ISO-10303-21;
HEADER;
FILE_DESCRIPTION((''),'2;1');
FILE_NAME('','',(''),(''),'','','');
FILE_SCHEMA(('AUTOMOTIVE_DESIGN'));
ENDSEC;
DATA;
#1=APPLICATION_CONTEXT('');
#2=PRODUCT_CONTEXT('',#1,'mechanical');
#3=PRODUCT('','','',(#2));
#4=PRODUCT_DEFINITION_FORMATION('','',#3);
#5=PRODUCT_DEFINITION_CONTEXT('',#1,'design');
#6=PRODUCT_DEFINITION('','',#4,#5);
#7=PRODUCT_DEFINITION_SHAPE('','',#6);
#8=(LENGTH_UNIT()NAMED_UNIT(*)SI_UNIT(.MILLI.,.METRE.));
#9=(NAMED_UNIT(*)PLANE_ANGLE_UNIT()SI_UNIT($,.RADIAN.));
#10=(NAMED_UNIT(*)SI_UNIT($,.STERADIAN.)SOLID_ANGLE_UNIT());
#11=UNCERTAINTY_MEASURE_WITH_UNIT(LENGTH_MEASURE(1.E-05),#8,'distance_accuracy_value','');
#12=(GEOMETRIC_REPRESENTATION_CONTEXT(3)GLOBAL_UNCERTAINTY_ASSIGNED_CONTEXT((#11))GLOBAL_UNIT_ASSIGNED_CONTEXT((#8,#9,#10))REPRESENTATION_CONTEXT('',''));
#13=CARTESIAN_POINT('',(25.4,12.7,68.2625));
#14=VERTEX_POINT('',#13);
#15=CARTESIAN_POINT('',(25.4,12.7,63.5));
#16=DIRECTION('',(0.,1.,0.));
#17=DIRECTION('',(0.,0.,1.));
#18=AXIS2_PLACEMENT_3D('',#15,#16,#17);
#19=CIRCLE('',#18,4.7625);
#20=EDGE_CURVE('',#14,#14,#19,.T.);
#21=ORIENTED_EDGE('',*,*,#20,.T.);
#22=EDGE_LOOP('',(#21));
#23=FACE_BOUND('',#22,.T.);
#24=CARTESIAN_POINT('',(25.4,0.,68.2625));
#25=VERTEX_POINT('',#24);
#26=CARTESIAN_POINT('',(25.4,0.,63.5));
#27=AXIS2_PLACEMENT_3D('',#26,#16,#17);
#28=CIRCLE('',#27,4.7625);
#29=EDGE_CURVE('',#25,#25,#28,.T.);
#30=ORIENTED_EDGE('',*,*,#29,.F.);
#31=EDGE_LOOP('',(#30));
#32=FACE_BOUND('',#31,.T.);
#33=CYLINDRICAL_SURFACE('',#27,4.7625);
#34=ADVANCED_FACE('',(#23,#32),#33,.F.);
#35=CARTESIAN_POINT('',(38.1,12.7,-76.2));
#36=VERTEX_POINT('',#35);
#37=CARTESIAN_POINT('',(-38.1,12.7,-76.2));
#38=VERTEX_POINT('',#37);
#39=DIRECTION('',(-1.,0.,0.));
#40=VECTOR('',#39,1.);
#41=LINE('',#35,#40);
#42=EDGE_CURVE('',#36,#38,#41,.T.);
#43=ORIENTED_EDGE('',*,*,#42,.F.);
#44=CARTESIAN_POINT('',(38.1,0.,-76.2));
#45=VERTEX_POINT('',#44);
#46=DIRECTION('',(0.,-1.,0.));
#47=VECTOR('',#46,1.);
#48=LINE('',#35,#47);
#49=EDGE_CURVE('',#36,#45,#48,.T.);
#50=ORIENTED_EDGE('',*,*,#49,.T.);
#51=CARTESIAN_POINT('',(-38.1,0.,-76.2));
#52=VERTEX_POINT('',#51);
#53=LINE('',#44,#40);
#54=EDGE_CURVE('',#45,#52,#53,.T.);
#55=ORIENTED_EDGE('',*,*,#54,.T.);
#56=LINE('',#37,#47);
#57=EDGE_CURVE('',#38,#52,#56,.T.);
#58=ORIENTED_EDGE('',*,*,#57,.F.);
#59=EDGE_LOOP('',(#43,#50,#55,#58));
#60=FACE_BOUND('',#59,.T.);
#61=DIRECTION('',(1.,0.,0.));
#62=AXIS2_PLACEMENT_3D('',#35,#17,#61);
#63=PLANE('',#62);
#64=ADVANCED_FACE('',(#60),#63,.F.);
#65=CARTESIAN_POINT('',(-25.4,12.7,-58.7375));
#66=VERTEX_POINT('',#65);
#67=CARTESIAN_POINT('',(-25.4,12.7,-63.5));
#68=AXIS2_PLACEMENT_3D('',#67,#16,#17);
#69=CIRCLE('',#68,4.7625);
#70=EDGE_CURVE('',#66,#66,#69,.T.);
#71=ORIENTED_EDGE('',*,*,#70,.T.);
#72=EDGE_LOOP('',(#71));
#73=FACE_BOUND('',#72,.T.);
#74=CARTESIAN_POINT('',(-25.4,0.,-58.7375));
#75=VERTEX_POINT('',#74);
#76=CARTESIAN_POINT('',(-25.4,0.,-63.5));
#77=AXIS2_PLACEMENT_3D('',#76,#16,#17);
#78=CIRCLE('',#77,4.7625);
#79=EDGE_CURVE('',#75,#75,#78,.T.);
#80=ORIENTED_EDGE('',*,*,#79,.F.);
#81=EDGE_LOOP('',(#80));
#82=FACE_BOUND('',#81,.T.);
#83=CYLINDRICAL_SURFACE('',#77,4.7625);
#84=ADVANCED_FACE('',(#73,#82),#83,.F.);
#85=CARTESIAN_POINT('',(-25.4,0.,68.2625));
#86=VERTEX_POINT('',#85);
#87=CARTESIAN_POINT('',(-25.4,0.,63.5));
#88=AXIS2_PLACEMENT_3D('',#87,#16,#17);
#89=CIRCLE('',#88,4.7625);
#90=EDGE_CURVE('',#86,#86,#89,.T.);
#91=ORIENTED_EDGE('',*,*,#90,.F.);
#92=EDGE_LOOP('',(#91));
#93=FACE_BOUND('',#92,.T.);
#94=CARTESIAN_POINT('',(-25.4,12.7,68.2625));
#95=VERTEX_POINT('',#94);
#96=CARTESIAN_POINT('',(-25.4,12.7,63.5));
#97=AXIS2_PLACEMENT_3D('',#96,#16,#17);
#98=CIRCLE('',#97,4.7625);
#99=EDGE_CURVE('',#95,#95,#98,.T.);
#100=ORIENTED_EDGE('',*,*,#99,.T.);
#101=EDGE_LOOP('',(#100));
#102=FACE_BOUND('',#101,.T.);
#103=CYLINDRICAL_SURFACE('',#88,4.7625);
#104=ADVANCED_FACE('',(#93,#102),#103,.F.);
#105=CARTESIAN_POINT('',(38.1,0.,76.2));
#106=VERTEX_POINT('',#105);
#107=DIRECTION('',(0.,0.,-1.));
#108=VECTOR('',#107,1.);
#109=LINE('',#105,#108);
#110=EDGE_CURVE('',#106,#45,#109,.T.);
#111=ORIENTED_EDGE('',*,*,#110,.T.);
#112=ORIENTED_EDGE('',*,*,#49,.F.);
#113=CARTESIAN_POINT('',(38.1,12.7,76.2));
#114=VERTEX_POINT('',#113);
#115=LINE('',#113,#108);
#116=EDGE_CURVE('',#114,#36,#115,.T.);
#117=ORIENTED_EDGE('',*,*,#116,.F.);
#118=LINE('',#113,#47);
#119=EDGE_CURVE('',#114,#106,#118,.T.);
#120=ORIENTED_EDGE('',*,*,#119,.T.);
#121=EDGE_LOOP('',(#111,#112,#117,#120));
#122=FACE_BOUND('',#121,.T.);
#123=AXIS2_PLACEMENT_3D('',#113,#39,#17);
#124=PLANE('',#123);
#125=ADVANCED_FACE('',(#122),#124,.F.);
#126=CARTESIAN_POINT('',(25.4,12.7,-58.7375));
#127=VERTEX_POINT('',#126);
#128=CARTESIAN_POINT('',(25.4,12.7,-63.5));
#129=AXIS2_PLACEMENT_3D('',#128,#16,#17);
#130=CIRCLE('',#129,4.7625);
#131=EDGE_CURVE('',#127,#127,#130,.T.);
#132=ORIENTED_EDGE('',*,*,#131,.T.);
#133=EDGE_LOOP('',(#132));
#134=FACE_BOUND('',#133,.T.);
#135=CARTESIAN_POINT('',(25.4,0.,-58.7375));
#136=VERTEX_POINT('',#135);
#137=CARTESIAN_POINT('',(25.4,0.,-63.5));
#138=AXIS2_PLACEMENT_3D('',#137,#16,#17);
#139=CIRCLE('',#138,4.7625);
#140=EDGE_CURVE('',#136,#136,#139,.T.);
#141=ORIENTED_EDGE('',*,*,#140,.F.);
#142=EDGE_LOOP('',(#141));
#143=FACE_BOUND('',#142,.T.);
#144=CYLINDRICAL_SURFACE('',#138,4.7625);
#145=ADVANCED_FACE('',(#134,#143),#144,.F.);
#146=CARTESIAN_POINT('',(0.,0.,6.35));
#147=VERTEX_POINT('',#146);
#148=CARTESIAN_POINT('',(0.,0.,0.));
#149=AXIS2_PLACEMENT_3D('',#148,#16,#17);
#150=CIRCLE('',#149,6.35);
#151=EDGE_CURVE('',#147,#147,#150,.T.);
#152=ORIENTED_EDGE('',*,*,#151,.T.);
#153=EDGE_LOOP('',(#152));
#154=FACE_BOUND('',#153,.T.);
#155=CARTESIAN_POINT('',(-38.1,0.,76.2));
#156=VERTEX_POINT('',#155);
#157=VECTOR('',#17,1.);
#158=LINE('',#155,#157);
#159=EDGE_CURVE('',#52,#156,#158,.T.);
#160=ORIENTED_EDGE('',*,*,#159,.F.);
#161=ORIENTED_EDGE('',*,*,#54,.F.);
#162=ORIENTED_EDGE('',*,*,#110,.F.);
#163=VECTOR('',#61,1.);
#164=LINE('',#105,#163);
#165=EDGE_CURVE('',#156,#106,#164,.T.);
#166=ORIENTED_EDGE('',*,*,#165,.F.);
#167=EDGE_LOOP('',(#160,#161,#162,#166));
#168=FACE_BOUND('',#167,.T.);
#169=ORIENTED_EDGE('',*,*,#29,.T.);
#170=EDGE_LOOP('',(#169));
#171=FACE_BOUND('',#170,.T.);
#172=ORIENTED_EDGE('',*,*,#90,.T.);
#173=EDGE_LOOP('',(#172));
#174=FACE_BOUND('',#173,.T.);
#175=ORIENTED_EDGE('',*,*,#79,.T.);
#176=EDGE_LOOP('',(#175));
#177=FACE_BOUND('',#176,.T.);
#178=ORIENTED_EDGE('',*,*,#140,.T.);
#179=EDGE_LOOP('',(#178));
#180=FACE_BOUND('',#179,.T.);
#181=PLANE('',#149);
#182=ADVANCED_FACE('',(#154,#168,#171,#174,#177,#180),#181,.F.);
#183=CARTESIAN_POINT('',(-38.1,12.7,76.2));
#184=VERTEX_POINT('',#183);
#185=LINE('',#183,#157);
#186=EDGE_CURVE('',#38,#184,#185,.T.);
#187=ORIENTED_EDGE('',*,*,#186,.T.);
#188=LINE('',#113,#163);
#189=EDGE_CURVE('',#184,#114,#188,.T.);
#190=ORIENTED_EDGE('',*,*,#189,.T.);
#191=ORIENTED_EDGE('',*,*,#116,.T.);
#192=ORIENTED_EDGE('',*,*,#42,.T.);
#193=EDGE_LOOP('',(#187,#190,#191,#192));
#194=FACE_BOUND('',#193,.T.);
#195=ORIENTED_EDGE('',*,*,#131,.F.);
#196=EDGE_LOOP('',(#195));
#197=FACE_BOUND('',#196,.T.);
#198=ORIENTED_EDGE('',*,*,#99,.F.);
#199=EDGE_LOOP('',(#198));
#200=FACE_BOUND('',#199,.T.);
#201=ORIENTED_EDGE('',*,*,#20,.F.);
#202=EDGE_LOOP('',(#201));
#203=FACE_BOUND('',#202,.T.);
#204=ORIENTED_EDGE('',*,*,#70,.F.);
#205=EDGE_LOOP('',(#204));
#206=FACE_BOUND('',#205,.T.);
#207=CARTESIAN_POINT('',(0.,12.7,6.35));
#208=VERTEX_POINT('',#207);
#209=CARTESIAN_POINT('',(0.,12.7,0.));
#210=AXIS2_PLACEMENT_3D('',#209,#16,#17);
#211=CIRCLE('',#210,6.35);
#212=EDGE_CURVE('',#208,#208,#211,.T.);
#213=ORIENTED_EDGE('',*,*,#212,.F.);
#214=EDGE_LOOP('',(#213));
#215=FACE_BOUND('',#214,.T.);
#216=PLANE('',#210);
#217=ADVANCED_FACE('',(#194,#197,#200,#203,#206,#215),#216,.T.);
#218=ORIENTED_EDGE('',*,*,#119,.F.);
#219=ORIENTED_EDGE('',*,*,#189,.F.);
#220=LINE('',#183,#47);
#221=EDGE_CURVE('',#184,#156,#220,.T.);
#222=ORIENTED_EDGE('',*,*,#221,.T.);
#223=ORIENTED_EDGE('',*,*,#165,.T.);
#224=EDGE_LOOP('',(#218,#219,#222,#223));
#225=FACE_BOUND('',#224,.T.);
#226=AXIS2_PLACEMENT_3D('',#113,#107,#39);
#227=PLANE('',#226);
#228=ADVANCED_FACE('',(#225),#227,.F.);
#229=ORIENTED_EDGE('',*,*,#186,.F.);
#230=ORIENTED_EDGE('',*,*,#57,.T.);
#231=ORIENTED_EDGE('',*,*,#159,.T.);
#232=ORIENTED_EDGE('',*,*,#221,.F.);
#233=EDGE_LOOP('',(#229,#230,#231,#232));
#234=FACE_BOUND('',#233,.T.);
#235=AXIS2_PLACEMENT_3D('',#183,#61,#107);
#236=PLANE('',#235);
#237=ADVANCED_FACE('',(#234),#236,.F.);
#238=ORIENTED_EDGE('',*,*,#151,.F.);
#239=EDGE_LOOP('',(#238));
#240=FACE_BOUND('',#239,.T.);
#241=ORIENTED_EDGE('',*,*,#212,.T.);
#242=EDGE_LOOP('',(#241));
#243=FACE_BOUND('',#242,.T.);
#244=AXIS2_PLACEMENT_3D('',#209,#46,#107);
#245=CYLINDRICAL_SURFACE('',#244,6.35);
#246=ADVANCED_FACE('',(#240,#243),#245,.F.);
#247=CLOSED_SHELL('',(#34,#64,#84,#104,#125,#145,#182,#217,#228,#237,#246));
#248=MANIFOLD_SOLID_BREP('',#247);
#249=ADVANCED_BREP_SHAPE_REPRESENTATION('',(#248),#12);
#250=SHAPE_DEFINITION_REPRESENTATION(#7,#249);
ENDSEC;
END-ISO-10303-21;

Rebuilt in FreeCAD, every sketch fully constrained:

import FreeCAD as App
import Part
import Sketcher
from FreeCAD import Vector
Q = App.Units.Quantity

doc = App.newDocument("Part")
body = doc.addObject("PartDesign::Body", "Body")

# Sketch on XZ plane
sketch1 = body.newObject("Sketcher::SketchObject", "Sketch")
sketch1.AttachmentSupport = (doc.getObject("XZ_Plane"), [""])
sketch1.MapMode = "FlatFace"
sketch1.addGeometry([
    Part.LineSegment(Vector(-38.1, -76.2, 0), Vector(-38.1, 76.2, 0)),  # 0
    Part.LineSegment(Vector(-38.1, 76.2, 0), Vector(38.1, 76.2, 0)),  # 1
    Part.LineSegment(Vector(38.1, 76.2, 0), Vector(38.1, -76.2, 0)),  # 2
    Part.LineSegment(Vector(38.1, -76.2, 0), Vector(-38.1, -76.2, 0)),  # 3
    Part.Circle(Vector(0, 0, 0), Vector(0, 0, 1), 6.35),  # 4
], False)
sketch1.addConstraint([
    Sketcher.Constraint("Coincident", 0, 2, 1, 1),
    Sketcher.Constraint("Coincident", 1, 2, 2, 1),
    Sketcher.Constraint("Coincident", 2, 2, 3, 1),
    Sketcher.Constraint("Coincident", 3, 2, 0, 1),
    Sketcher.Constraint("Vertical", 0),
    Sketcher.Constraint("Horizontal", 1),
    Sketcher.Constraint("Vertical", 2),
    Sketcher.Constraint("Horizontal", 3),
    Sketcher.Constraint("Coincident", 4, 3, -1, 1),
    Sketcher.Constraint("Symmetric", 0, 2, 2, 2, -1, 1),
    Sketcher.Constraint("Diameter", 4, Q("0.5 in")),
    Sketcher.Constraint("DistanceX", 1, 1, 1, 2, Q("3 in")),
    Sketcher.Constraint("DistanceY", 0, 1, 0, 2, Q("6 in")),
])
pad1 = body.newObject("PartDesign::Pad", "Pad")
pad1.Profile = sketch1
pad1.Length = Q("0.5 in")
pad1.Reversed = True

# Sketch on XZ plane
sketch2 = body.newObject("Sketcher::SketchObject", "Sketch001")
sketch2.AttachmentSupport = (doc.getObject("XZ_Plane"), [""])
sketch2.MapMode = "FlatFace"
sketch2.AttachmentOffset = App.Placement(Vector(0, 0, -0.5 * 25.4), App.Rotation())
sketch2.addGeometry([
    Part.Circle(Vector(-25.4, -63.5, 0), Vector(0, 0, 1), 4.7625),
    Part.Circle(Vector(-25.4, 63.5, 0), Vector(0, 0, 1), 4.7625),
    Part.Circle(Vector(25.4, 63.5, 0), Vector(0, 0, 1), 4.7625),
    Part.Circle(Vector(25.4, -63.5, 0), Vector(0, 0, 1), 4.7625),
], False)
sketch2.addConstraint([
    Sketcher.Constraint("Equal", 0, 1),
    Sketcher.Constraint("Equal", 1, 2),
    Sketcher.Constraint("Equal", 2, 3),
    Sketcher.Constraint("Symmetric", 0, 3, 2, 3, -1, 1),
    Sketcher.Constraint("Symmetric", 1, 3, 3, 3, -1, 1),
    Sketcher.Constraint("Symmetric", 1, 3, 2, 3, -2),
    Sketcher.Constraint("Diameter", 0, Q("0.375 in")),
    Sketcher.Constraint("DistanceX", 0, 3, -1, 1, Q("1 in")),
    Sketcher.Constraint("DistanceY", 0, 3, 1, 3, Q("5 in")),
])
pocket1 = body.newObject("PartDesign::Pocket", "Pocket")
pocket1.Profile = sketch2
pocket1.Type = "ThroughAll"
pocket1.Reversed = True

doc.recompute()
